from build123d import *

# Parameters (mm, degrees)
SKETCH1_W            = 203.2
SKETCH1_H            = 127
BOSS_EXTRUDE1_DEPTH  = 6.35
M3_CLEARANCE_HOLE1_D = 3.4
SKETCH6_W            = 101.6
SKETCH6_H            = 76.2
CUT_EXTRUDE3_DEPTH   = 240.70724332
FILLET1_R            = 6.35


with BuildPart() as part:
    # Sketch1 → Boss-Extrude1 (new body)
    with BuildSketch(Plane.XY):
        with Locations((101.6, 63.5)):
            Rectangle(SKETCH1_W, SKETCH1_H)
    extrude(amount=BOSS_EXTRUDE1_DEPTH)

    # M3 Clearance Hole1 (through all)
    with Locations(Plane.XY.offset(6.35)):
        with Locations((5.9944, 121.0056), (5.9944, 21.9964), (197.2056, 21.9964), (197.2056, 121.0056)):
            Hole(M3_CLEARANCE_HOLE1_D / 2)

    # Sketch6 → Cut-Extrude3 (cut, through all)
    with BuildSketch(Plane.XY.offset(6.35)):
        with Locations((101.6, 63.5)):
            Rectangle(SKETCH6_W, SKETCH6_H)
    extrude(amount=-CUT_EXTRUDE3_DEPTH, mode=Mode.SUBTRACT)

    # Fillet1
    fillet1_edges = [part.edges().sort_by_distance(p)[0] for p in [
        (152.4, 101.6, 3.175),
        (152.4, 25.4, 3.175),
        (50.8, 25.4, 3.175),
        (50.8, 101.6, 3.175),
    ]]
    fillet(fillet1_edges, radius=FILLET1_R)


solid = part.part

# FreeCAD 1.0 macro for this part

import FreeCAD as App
import Part
import Sketcher
Q = App.Units.Quantity


def edges_at(feature, points):
    """Names of the edges that pass closest to the given points."""
    edges = feature.Shape.Edges
    near = lambda p: min(range(len(edges)), key=lambda i: edges[i].distToShape(Part.Vertex(*p))[0])
    return sorted({f"Edge{near(p) + 1}" for p in points})

doc = App.newDocument("Part")
body = doc.addObject("PartDesign::Body", "Body")

sketch1 = doc.addObject("Sketcher::SketchObject", "Sketch")
body.addObject(sketch1)
sketch1.AttachmentSupport = (doc.XY_Plane, [""])
sketch1.MapMode = "FlatFace"
sketch1.addGeometry([
    Part.LineSegment(App.Vector(0, 127, 0), App.Vector(0, 0, 0)),
    Part.LineSegment(App.Vector(0, 0, 0), App.Vector(203.2, 0, 0)),
    Part.LineSegment(App.Vector(203.2, 0, 0), App.Vector(203.2, 127, 0)),
    Part.LineSegment(App.Vector(203.2, 127, 0), App.Vector(0, 127, 0)),
], False)
sketch1.addConstraint([
    Sketcher.Constraint("Coincident", 0, 2, 1, 1),
    Sketcher.Constraint("Coincident", 1, 2, 2, 1),
    Sketcher.Constraint("Coincident", 2, 2, 3, 1),
    Sketcher.Constraint("Coincident", 3, 2, 0, 1),
    Sketcher.Constraint("Vertical", 0),
    Sketcher.Constraint("Horizontal", 1),
    Sketcher.Constraint("Vertical", 2),
    Sketcher.Constraint("Horizontal", 3),
    Sketcher.Constraint("Coincident", 0, 2, -1, 1),
    Sketcher.Constraint("DistanceX", 1, 1, 1, 2, Q("8 in")),
    Sketcher.Constraint("DistanceY", 0, 2, 0, 1, Q("5 in")),
])
pad1 = doc.addObject("PartDesign::Pad", "Pad")
body.addObject(pad1)
pad1.Profile = sketch1
pad1.Length = Q("0.25 in")

sketch2 = doc.addObject("Sketcher::SketchObject", "Sketch001")
body.addObject(sketch2)
sketch2.AttachmentSupport = (doc.XY_Plane, [""])
sketch2.MapMode = "FlatFace"
sketch2.AttachmentOffset = App.Placement(App.Vector(0, 0, 0.25 * 25.4), App.Rotation())
sketch2.addGeometry([
    Part.Circle(App.Vector(5.9944, 121.0056, 0), App.Vector(0, 0, 1), 1.7),
    Part.Circle(App.Vector(5.9944, 21.9964, 0), App.Vector(0, 0, 1), 1.7),
    Part.Circle(App.Vector(197.2056, 21.9964, 0), App.Vector(0, 0, 1), 1.7),
    Part.Circle(App.Vector(197.2056, 121.0056, 0), App.Vector(0, 0, 1), 1.7),
], False)
sketch2.addConstraint([
    Sketcher.Constraint("Equal", 0, 1),
    Sketcher.Constraint("Equal", 1, 2),
    Sketcher.Constraint("Equal", 2, 3),
    Sketcher.Constraint("Horizontal", 1, 3, 2, 3),
    Sketcher.Constraint("Horizontal", 0, 3, 3, 3),
    Sketcher.Constraint("Vertical", 0, 3, 1, 3),
    Sketcher.Constraint("Vertical", 2, 3, 3, 3),
    Sketcher.Constraint("Diameter", 0, Q("3.4 mm")),
    Sketcher.Constraint("DistanceX", -1, 1, 0, 3, Q("0.236 in")),
    Sketcher.Constraint("DistanceY", -1, 1, 0, 3, Q("4.764 in")),
    Sketcher.Constraint("DistanceY", -1, 1, 1, 3, Q("0.866 in")),
    Sketcher.Constraint("DistanceX", -1, 1, 2, 3, Q("7.764 in")),
])
doc.recompute()
hole = doc.addObject("PartDesign::Hole", "Hole")
body.addObject(hole)
hole.Profile = sketch2
hole.ThreadType = "None"
hole.Diameter = 3.4
hole.DepthType = "ThroughAll"

sketch3 = doc.addObject("Sketcher::SketchObject", "Sketch002")
body.addObject(sketch3)
sketch3.AttachmentSupport = (doc.XY_Plane, [""])
sketch3.MapMode = "FlatFace"
sketch3.AttachmentOffset = App.Placement(App.Vector(0, 0, 0.25 * 25.4), App.Rotation())
sketch3.addGeometry([
    Part.LineSegment(App.Vector(50.8, 101.6, 0), App.Vector(50.8, 25.4, 0)),
    Part.LineSegment(App.Vector(50.8, 25.4, 0), App.Vector(152.4, 25.4, 0)),
    Part.LineSegment(App.Vector(152.4, 25.4, 0), App.Vector(152.4, 101.6, 0)),
    Part.LineSegment(App.Vector(152.4, 101.6, 0), App.Vector(50.8, 101.6, 0)),
], False)
sketch3.addConstraint([
    Sketcher.Constraint("Coincident", 0, 2, 1, 1),
    Sketcher.Constraint("Coincident", 1, 2, 2, 1),
    Sketcher.Constraint("Coincident", 2, 2, 3, 1),
    Sketcher.Constraint("Coincident", 3, 2, 0, 1),
    Sketcher.Constraint("Vertical", 0),
    Sketcher.Constraint("Horizontal", 1),
    Sketcher.Constraint("Vertical", 2),
    Sketcher.Constraint("Horizontal", 3),
    Sketcher.Constraint("DistanceX", 1, 1, 1, 2, Q("4 in")),
    Sketcher.Constraint("DistanceY", 0, 2, 0, 1, Q("3 in")),
    Sketcher.Constraint("DistanceX", -1, 1, 0, 2, Q("2 in")),
    Sketcher.Constraint("DistanceY", -1, 1, 0, 2, Q("1 in")),
])
pocket1 = doc.addObject("PartDesign::Pocket", "Pocket")
body.addObject(pocket1)
pocket1.Profile = sketch3
pocket1.Type = "ThroughAll"
doc.recompute()

fillet = doc.addObject("PartDesign::Fillet", "Fillet")
body.addObject(fillet)
fillet.Base = (pocket1, edges_at(pocket1, [
    (152.4, 101.6, 3.175),
    (152.4, 25.4, 3.175),
    (50.8, 25.4, 3.175),
    (50.8, 101.6, 3.175),
]))
fillet.Radius = Q("0.25 in")

doc.recompute()
